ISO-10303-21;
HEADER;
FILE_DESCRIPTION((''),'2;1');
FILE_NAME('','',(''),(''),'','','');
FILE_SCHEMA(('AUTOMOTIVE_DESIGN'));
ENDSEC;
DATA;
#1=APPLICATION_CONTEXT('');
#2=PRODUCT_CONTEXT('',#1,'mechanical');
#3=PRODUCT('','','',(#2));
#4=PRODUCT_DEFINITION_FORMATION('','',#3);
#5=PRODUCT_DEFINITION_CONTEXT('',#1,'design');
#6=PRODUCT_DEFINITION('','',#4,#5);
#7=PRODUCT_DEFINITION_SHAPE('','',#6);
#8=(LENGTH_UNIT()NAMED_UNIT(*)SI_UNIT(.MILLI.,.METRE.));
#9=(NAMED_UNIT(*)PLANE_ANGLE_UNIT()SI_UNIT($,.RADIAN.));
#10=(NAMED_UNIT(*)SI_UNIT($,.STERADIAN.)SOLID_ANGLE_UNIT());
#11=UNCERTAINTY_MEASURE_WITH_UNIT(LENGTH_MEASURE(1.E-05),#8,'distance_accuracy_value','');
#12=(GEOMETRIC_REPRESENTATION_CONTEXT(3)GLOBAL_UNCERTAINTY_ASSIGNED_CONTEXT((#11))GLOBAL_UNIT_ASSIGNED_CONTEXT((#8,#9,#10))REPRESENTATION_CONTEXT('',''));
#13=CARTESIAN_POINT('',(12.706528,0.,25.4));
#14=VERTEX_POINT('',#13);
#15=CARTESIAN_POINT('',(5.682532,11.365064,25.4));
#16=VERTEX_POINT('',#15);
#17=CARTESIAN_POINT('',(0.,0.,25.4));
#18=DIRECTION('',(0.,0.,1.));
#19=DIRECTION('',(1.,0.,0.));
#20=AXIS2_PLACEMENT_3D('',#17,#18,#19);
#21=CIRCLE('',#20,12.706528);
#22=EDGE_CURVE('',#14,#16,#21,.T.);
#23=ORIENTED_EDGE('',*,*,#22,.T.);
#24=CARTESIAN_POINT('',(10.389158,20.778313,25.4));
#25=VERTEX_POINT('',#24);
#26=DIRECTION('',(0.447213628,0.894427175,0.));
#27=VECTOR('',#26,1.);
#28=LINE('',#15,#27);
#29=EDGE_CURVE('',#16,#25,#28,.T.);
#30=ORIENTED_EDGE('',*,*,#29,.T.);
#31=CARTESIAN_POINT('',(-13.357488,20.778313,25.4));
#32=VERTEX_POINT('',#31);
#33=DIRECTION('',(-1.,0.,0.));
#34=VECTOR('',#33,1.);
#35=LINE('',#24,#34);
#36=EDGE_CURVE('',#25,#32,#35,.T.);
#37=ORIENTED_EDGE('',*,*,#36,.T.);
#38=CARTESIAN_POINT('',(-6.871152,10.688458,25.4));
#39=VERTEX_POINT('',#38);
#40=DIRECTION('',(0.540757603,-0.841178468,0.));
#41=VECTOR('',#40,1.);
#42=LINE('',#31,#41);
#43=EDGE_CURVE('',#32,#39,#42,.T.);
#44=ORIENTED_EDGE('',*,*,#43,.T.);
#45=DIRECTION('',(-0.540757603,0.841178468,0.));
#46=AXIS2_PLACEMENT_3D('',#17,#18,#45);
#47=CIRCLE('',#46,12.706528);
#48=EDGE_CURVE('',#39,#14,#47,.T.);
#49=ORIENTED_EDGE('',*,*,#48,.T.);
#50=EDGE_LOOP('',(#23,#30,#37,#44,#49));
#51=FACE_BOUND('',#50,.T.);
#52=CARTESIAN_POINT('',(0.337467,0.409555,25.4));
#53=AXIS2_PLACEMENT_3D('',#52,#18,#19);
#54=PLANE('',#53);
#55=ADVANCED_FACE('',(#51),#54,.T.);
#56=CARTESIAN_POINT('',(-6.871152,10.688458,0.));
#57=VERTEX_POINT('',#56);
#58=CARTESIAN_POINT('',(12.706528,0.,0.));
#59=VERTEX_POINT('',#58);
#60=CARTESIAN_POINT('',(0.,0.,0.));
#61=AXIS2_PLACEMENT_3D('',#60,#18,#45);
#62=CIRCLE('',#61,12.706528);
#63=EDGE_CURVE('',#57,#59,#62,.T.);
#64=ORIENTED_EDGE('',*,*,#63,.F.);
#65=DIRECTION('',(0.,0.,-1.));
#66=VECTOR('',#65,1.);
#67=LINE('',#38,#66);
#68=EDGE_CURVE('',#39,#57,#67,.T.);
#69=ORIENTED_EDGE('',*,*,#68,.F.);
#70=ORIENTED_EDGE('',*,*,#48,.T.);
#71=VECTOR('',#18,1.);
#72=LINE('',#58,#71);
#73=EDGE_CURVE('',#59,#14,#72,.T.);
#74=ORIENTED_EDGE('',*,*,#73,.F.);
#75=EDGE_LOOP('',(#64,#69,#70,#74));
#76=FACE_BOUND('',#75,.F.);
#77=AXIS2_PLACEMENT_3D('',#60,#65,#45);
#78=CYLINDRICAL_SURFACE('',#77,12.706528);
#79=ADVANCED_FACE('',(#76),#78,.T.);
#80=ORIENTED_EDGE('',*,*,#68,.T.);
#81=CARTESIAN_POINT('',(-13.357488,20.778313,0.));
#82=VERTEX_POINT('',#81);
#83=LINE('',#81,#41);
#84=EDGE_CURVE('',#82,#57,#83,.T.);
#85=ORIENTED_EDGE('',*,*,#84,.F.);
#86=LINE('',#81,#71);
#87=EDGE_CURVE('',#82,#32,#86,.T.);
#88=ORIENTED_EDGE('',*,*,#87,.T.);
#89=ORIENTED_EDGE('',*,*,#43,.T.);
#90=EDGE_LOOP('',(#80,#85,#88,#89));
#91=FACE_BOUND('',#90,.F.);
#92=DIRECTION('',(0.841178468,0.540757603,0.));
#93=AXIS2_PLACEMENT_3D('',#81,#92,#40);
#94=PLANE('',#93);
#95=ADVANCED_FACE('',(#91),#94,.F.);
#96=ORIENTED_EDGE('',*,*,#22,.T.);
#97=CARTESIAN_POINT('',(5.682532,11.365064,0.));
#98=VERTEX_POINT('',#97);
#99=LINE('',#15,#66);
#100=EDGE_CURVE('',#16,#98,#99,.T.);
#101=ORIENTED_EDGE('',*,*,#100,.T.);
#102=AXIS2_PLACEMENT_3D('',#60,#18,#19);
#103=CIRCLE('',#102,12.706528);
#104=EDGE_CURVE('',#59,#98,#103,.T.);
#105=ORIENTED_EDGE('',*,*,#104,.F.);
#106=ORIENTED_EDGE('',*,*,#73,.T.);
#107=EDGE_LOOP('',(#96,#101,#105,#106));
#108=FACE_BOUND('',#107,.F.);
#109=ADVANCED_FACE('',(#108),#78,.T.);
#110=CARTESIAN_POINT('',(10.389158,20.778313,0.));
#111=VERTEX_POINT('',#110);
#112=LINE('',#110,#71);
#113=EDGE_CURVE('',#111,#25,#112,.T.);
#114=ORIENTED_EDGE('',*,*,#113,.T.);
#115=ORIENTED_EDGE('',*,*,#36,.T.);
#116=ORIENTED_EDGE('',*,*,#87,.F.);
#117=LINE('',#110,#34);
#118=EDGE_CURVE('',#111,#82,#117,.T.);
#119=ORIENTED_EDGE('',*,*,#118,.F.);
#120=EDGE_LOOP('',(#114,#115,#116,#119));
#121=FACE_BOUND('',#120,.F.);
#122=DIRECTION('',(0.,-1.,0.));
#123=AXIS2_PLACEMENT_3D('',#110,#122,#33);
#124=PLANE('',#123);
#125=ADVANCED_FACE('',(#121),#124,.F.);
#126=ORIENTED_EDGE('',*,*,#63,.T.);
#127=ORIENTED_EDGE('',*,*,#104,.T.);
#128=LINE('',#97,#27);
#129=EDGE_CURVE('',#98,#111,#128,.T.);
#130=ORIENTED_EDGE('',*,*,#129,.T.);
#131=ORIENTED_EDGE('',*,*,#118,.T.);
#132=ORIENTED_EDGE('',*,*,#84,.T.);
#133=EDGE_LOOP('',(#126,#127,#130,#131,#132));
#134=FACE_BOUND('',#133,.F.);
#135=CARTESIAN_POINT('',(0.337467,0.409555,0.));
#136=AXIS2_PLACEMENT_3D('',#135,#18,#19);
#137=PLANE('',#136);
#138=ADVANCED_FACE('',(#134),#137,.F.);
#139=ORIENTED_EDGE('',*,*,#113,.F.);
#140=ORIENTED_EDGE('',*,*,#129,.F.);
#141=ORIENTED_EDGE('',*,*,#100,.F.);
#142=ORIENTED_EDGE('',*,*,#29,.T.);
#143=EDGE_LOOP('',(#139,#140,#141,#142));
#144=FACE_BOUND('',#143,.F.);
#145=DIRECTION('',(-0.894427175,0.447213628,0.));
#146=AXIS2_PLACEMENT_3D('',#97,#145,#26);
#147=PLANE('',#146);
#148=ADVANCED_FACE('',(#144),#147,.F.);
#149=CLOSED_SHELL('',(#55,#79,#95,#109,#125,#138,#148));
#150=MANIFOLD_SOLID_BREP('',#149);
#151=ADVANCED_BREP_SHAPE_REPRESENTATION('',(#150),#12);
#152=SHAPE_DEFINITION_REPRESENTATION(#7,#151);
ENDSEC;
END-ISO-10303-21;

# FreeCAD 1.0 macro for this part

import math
import FreeCAD as App
import Part
import Sketcher
Q = App.Units.Quantity

doc = App.newDocument("Part")
body = doc.addObject("PartDesign::Body", "Body")

sketch1 = body.newObject("Sketcher::SketchObject", "Sketch")
sketch1.AttachmentSupport = (doc.getObject("XY_Plane"), [""])
sketch1.MapMode = "FlatFace"
sketch1.addGeometry([
    Part.ArcOfCircle(Part.Circle(App.Vector(0, 0, 0), App.Vector(0, 0, 1), 13), math.radians(123), math.radians(360)),
    Part.ArcOfCircle(Part.Circle(App.Vector(0, 0, 0), App.Vector(0, 0, 1), 13), math.radians(0), math.radians(63)),
    Part.ArcOfCircle(Part.Circle(App.Vector(0, 0, 0), App.Vector(0, 0, 1), 13), math.radians(63), math.radians(123)),
], False)
sketch1.addConstraint([
    Sketcher.Constraint("Tangent", 0, 2, 1, 1),
    Sketcher.Constraint("Tangent", 1, 2, 2, 1),
    Sketcher.Constraint("Tangent", 2, 2, 0, 1),
    Sketcher.Constraint("Coincident", 0, 3, -1, 1),
    Sketcher.Constraint("PointOnObject", 0, 2, -1),
    Sketcher.Constraint("Radius", 0, 12.706528),
    Sketcher.Constraint("DistanceX", 2, 2, -1, 1, 6.871152),
    Sketcher.Constraint("DistanceX", -1, 1, 1, 2, 5.682532),
])
pad1 = body.newObject("PartDesign::Pad", "Pad")
pad1.Profile = sketch1
pad1.Length = Q("0.8 in")

sketch2 = body.newObject("Sketcher::SketchObject", "Sketch001")
sketch2.AttachmentSupport = (doc.getObject("XY_Plane"), [""])
sketch2.MapMode = "FlatFace"
sketch2.addGeometry([
    Part.ArcOfCircle(Part.Circle(App.Vector(0, 0, 0), App.Vector(0, 0, 1), 13), math.radians(123), math.radians(360)),
    Part.ArcOfCircle(Part.Circle(App.Vector(0, 0, 0), App.Vector(0, 0, 1), 13), math.radians(0), math.radians(63)),
    Part.LineSegment(App.Vector(6, 11, 0), App.Vector(10, 21, 0)),
    Part.LineSegment(App.Vector(10, 21, 0), App.Vector(-13, 21, 0)),
    Part.LineSegment(App.Vector(-13, 21, 0), App.Vector(-7, 11, 0)),
], False)
sketch2.addConstraint([
    Sketcher.Constraint("Tangent", 0, 2, 1, 1),
    Sketcher.Constraint("Coincident", 1, 2, 2, 1),
    Sketcher.Constraint("Coincident", 2, 2, 3, 1),
    Sketcher.Constraint("Coincident", 3, 2, 4, 1),
    Sketcher.Constraint("Coincident", 4, 2, 0, 1),
    Sketcher.Constraint("Horizontal", 3),
    Sketcher.Constraint("Coincident", 0, 3, -1, 1),
    Sketcher.Constraint("Equal", 0, 1),
    Sketcher.Constraint("PointOnObject", 0, 2, -1),
    Sketcher.Constraint("Radius", 0, 12.706528),
    Sketcher.Constraint("DistanceX", 3, 2, 3, 1, 23.746645),
    Sketcher.Constraint("DistanceX", 4, 2, -1, 1, 6.871152),
    Sketcher.Constraint("DistanceY", 1, 2, 2, 2, 9.413249),
    Sketcher.Constraint("DistanceX", 2, 2, 0, 2, 2.31737),
    Sketcher.Constraint("DistanceX", 3, 2, 1, 2, 19.04002),
])
pad2 = body.newObject("PartDesign::Pad", "Pad001")
pad2.Profile = sketch2
pad2.Length = Q("1 in")

doc.recompute()
